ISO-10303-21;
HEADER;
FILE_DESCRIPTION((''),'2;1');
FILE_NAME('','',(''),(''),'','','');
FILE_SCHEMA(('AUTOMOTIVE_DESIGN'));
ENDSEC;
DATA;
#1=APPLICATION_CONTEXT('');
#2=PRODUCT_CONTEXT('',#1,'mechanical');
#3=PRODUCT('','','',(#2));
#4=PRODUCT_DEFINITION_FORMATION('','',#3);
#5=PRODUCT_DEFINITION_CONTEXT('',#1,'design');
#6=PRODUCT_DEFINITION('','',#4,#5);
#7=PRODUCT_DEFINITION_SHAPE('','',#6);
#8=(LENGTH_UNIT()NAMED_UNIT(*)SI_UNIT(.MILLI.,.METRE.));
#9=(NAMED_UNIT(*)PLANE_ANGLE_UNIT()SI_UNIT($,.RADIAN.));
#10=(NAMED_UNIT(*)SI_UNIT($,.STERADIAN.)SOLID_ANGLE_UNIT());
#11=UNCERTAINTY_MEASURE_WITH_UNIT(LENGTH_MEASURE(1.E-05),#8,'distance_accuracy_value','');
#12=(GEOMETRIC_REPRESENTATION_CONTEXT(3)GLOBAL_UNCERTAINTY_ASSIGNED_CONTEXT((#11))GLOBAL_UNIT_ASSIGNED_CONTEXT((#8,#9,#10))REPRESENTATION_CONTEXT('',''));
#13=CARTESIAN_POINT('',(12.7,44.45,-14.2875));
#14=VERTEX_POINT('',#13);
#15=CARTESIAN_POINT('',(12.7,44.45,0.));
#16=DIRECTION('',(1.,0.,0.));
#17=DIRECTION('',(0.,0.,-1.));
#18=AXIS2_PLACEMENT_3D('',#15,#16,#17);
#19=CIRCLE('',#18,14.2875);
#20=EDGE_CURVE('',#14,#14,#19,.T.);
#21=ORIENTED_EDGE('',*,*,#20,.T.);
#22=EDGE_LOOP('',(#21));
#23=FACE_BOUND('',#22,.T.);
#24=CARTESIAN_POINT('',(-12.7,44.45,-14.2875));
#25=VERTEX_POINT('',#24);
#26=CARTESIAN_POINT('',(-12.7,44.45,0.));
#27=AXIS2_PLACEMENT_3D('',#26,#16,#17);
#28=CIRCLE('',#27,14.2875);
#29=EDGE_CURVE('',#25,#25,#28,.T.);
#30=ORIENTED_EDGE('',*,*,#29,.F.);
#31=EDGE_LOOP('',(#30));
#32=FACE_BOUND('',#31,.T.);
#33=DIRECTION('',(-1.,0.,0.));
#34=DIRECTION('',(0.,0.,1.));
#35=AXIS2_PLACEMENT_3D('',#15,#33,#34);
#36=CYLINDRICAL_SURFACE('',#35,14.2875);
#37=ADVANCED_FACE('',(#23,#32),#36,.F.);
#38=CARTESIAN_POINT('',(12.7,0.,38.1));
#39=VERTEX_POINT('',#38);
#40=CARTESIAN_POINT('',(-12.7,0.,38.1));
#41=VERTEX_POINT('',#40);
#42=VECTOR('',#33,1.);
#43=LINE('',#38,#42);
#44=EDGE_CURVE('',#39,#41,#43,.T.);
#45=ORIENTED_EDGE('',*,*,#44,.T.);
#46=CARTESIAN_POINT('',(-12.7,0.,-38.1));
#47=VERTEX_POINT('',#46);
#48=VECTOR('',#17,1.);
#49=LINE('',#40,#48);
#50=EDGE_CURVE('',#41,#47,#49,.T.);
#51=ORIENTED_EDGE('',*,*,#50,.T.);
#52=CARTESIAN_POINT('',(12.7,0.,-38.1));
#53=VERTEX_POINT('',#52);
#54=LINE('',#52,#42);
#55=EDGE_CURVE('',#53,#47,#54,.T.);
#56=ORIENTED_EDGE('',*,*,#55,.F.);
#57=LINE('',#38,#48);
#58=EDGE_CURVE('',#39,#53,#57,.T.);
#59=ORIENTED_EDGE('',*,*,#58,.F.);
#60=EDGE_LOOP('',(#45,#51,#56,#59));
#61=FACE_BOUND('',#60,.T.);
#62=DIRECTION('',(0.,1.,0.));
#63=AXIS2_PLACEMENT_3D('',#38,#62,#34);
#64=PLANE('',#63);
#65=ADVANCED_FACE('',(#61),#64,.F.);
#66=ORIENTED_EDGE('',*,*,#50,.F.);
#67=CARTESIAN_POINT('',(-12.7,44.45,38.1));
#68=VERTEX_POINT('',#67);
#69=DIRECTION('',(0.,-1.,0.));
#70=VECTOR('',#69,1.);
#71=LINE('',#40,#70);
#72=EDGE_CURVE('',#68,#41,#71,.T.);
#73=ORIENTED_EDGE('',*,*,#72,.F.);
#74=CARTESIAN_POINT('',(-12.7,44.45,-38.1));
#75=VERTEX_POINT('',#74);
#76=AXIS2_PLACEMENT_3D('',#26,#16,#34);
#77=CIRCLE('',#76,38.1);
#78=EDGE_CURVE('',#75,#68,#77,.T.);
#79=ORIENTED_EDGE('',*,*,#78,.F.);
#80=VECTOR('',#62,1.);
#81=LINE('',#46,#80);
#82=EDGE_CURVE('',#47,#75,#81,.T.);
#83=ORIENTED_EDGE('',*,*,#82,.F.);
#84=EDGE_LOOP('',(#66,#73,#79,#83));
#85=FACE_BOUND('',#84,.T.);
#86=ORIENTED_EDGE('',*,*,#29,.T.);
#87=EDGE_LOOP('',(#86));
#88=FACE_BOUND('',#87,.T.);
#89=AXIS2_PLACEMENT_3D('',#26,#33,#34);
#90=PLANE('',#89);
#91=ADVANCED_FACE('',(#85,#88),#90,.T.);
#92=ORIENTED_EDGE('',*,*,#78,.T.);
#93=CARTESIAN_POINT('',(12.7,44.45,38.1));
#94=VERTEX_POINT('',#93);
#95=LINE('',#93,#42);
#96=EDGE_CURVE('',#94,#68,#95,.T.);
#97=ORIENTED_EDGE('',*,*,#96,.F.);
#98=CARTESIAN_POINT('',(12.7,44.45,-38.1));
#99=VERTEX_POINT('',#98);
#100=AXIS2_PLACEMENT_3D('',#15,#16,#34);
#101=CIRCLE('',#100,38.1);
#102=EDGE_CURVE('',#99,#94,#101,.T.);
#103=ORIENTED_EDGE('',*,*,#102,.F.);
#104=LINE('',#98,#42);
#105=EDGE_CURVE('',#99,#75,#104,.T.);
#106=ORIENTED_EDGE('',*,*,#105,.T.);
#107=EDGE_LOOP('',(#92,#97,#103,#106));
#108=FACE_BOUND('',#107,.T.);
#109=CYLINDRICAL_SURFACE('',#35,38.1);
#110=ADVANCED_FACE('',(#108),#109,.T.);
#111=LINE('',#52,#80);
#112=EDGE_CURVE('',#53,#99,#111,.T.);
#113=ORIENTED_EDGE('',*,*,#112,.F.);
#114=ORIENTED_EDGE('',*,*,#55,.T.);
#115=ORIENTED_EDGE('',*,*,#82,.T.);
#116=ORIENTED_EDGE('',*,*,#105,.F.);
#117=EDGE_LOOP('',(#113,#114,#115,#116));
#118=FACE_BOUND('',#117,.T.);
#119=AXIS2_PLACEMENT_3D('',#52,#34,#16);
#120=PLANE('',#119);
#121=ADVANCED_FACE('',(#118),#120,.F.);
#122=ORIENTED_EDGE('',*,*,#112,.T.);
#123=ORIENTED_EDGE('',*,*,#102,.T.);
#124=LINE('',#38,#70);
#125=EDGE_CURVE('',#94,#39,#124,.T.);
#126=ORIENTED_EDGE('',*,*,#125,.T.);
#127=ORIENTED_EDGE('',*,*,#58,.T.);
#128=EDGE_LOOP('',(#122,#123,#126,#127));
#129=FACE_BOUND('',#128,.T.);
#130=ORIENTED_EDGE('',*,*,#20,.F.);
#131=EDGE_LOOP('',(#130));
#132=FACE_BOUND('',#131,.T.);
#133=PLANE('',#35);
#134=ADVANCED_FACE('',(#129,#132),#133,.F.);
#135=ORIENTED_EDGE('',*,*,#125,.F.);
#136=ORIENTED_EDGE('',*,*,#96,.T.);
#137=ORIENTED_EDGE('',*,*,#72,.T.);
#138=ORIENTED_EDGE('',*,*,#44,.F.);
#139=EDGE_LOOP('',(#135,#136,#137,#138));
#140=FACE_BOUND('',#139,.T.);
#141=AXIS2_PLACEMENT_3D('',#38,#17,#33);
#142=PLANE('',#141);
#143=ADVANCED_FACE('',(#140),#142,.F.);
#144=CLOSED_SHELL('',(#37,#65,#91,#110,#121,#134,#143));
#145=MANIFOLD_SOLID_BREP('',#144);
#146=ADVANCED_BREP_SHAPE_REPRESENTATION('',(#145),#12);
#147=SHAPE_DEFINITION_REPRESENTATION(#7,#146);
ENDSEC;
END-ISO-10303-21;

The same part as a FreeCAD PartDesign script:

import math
import FreeCAD as App
import Part
import Sketcher
Q = App.Units.Quantity

doc = App.newDocument("Part")
body = doc.addObject("PartDesign::Body", "Body")

sketch1 = doc.addObject("Sketcher::SketchObject", "Sketch")
body.addObject(sketch1)
sketch1.AttachmentSupport = (doc.YZ_Plane, [""])
sketch1.MapMode = "FlatFace"
sketch1.addGeometry([
    Part.LineSegment(App.Vector(0, 38, 0), App.Vector(0, -38, 0)),
    Part.LineSegment(App.Vector(0, -38, 0), App.Vector(44, -38, 0)),
    Part.ArcOfCircle(Part.Circle(App.Vector(44, 0, 0), App.Vector(0, 0, 1), 38), math.radians(-90), math.radians(90)),
    Part.LineSegment(App.Vector(44, 38, 0), App.Vector(0, 38, 0)),
    Part.Circle(App.Vector(44, 0, 0), App.Vector(0, 0, 1), 14),
], False)
sketch1.addConstraint([
    Sketcher.Constraint("Coincident", 0, 2, 1, 1),
    Sketcher.Constraint("Tangent", 1, 2, 2, 1),
    Sketcher.Constraint("Tangent", 2, 2, 3, 1),
    Sketcher.Constraint("Coincident", 3, 2, 0, 1),
    Sketcher.Constraint("Vertical", 0),
    Sketcher.Constraint("Horizontal", 1),
    Sketcher.Constraint("Horizontal", 3),
    Sketcher.Constraint("Coincident", 4, 3, 2, 3),
    Sketcher.Constraint("Symmetric", 0, 2, 3, 2, -1, 1),
    Sketcher.Constraint("Radius", 2, Q("1.5 in")),
    Sketcher.Constraint("Diameter", 4, Q("1.125 in")),
    Sketcher.Constraint("DistanceX", 1, 1, 1, 2, Q("1.75 in")),
])
pad1 = doc.addObject("PartDesign::Pad", "Pad")
body.addObject(pad1)
pad1.Profile = sketch1
pad1.Length = Q("1 in")
pad1.Midplane = True

doc.recompute()
